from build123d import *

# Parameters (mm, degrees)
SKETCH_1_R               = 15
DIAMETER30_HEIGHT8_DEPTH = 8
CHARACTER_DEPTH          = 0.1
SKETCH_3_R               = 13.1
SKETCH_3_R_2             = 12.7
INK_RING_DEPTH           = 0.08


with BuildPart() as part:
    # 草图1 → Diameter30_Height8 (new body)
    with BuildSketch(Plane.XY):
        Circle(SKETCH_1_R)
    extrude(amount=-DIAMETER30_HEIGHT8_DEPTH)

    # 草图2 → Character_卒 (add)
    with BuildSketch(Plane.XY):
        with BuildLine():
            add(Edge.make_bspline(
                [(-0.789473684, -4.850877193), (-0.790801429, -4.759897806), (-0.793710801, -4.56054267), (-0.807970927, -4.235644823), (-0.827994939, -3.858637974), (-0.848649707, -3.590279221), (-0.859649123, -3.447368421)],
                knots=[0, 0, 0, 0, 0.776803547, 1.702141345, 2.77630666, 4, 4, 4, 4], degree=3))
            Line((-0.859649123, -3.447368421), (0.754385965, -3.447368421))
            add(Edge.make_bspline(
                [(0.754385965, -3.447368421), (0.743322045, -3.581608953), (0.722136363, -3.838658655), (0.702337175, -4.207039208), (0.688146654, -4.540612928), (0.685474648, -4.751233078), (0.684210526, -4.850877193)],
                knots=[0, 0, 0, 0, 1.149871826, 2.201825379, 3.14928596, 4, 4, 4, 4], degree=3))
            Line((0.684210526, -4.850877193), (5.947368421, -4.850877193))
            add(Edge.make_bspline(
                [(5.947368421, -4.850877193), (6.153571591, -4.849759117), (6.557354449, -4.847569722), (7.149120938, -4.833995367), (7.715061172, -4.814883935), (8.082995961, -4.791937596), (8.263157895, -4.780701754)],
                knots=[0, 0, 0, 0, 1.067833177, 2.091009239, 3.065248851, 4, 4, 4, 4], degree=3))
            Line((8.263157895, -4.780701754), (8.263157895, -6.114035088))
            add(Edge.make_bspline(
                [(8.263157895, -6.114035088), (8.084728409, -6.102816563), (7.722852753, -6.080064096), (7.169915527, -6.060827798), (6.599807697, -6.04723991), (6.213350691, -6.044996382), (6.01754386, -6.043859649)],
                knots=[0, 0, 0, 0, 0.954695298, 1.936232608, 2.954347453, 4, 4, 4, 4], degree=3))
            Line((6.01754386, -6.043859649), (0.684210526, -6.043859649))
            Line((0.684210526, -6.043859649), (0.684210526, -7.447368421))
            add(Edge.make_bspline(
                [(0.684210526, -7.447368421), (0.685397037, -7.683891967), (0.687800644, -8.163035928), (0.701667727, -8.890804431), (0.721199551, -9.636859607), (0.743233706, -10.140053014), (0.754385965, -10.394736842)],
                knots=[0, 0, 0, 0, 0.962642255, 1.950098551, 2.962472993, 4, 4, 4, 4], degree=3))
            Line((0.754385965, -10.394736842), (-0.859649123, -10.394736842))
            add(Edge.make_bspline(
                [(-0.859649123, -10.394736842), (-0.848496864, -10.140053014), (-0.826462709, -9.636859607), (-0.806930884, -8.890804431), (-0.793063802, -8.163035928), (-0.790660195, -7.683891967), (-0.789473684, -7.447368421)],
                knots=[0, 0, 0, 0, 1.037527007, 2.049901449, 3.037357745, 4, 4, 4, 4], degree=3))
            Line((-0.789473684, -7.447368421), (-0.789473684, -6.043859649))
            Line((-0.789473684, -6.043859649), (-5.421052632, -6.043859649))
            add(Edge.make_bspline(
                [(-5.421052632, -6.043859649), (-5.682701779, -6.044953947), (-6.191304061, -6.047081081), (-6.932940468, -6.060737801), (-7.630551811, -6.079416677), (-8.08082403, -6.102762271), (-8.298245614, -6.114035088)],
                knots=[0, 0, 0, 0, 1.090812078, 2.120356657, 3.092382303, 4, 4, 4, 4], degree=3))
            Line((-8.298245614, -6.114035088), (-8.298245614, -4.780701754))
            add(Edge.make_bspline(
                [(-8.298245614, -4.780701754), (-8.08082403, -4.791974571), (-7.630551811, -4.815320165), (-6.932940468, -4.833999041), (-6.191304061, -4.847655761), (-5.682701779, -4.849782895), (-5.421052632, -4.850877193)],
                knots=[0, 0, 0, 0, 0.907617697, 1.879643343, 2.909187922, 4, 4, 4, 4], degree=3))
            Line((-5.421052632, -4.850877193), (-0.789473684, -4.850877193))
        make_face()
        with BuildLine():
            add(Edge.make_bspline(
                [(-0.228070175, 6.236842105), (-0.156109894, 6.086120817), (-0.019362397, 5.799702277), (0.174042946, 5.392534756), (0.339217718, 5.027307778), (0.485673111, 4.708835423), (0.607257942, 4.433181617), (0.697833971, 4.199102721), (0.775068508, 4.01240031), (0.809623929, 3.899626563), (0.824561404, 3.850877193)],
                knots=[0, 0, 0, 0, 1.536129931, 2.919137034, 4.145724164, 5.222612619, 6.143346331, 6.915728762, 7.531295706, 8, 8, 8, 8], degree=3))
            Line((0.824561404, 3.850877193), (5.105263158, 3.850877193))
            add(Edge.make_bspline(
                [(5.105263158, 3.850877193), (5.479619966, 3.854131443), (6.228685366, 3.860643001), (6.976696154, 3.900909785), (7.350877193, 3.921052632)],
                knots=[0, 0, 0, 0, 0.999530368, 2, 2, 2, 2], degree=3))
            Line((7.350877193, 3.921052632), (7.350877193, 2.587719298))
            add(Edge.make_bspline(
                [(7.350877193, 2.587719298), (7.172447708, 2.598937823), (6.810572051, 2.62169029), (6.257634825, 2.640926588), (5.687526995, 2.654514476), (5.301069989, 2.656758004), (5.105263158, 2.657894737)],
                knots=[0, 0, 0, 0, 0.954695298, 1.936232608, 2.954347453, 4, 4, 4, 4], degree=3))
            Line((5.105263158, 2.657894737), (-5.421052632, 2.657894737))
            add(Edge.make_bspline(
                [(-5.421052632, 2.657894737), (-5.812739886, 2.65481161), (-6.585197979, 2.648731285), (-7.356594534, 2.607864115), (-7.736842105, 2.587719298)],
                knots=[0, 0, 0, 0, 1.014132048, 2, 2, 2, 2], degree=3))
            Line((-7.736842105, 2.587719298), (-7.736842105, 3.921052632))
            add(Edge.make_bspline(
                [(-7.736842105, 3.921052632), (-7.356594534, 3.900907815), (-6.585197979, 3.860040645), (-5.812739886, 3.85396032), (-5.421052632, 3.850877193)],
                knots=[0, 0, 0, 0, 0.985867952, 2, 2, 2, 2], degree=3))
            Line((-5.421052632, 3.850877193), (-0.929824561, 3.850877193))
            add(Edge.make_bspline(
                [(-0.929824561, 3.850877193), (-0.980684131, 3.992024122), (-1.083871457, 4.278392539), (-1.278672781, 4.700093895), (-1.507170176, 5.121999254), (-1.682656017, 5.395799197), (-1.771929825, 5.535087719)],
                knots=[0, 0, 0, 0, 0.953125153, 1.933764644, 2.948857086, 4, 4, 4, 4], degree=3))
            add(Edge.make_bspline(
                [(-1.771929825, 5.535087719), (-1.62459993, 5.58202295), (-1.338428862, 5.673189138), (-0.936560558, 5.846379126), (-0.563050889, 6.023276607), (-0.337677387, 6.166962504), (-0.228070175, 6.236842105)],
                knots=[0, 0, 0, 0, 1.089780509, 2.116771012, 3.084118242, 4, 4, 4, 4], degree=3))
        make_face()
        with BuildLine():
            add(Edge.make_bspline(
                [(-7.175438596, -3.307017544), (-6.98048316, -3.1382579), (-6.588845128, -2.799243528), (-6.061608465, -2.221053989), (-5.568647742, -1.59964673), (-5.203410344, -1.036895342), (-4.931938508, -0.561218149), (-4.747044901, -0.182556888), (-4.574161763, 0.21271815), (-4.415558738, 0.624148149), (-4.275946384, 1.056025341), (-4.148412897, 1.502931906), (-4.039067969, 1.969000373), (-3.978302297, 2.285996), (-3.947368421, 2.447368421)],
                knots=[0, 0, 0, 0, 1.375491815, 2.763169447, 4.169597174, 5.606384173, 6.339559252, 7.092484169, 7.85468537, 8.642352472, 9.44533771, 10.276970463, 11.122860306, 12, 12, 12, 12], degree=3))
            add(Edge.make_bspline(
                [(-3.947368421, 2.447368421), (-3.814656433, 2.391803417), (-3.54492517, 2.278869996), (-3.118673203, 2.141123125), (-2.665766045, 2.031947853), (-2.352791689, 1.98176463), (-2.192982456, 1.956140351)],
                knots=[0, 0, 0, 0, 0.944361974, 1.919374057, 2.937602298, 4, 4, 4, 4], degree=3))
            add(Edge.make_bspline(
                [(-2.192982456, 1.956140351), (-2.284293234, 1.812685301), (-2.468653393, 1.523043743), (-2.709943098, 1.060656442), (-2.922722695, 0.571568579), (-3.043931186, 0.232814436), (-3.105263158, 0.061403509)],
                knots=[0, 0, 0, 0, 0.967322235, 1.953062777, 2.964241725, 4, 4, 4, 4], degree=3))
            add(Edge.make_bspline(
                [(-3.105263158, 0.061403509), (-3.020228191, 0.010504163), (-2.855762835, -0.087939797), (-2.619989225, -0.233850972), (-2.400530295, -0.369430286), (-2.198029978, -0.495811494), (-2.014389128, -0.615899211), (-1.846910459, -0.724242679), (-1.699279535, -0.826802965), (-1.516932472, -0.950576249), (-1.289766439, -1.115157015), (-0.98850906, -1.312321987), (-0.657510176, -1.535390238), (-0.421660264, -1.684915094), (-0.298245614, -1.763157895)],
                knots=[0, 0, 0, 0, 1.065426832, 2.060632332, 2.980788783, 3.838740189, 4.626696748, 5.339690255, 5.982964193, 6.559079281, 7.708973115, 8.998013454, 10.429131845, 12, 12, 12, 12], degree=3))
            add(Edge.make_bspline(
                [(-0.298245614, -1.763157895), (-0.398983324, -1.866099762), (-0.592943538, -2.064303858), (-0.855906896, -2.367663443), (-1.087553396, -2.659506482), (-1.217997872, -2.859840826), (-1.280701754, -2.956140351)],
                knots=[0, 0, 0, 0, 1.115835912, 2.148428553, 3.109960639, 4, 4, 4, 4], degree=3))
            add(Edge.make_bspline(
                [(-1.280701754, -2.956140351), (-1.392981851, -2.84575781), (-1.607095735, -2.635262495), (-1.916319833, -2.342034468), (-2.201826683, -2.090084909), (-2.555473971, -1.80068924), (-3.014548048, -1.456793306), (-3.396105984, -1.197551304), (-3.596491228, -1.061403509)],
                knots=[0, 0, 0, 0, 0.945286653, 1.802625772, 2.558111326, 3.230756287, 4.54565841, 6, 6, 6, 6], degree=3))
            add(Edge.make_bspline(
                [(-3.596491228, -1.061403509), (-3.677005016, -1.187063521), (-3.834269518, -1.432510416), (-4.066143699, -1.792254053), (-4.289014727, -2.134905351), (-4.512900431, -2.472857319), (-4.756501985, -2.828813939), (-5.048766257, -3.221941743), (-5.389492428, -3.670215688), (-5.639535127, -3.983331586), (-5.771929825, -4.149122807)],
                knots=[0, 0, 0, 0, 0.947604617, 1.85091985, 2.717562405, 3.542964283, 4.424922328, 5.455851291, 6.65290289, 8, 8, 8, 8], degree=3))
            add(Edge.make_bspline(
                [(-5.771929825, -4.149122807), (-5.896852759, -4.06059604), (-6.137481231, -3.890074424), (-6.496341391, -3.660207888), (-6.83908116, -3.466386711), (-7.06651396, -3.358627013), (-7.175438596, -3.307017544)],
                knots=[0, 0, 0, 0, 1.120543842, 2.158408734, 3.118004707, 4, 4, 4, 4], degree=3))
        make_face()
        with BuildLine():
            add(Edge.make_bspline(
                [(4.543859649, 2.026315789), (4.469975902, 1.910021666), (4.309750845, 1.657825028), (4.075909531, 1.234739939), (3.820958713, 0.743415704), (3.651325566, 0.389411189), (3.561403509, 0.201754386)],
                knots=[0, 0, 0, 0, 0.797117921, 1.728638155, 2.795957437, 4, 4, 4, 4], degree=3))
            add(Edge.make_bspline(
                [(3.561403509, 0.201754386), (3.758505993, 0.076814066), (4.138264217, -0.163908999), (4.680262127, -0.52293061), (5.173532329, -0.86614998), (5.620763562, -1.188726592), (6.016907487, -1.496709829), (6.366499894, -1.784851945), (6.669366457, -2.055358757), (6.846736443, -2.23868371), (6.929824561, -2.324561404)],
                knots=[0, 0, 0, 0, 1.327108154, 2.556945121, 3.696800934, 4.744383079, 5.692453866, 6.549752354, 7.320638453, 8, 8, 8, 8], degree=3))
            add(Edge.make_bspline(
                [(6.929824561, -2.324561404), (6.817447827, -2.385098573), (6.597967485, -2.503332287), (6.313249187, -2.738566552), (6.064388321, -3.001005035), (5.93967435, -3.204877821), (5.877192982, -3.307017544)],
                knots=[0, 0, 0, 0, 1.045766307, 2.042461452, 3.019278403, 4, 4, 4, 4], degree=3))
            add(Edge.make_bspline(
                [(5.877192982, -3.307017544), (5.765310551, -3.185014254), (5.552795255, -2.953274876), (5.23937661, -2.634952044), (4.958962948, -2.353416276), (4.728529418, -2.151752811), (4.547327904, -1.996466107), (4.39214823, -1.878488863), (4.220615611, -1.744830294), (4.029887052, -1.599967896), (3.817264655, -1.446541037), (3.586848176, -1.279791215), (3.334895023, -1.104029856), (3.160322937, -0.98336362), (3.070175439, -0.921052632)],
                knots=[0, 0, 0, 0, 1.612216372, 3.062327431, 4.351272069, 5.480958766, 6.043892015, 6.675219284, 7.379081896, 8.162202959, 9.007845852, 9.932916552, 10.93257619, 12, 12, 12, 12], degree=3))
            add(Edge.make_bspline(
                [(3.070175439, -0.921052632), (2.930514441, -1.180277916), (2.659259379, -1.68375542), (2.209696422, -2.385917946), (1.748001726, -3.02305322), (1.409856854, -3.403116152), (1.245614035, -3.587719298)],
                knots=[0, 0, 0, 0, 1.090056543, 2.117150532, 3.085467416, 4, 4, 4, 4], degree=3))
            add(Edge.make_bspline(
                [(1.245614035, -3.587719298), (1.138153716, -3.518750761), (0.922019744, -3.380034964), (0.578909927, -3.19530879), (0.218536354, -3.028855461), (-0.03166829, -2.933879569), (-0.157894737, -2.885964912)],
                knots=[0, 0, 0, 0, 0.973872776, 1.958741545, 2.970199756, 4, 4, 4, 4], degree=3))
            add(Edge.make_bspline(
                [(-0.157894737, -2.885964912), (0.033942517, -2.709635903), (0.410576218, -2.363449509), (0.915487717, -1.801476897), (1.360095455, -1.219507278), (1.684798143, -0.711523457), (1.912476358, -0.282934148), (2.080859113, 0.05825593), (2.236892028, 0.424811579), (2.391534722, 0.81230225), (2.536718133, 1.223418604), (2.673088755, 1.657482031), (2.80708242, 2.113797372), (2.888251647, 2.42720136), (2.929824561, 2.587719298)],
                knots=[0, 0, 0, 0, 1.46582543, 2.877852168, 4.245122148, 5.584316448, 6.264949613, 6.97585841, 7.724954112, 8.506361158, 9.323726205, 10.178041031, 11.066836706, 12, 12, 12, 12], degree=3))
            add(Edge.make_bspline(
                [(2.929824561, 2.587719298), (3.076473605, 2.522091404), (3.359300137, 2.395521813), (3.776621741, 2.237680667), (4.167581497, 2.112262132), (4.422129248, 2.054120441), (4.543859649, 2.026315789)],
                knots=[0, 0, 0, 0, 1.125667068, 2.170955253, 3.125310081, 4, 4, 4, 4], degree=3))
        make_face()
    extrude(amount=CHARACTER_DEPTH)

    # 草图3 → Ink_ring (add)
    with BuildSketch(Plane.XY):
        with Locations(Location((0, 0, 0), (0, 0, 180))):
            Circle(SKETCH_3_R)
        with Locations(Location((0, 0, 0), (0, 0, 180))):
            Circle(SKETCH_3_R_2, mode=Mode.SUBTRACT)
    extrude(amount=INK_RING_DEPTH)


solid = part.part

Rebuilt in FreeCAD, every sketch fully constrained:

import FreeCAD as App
import Part
import Sketcher

doc = App.newDocument("Part")
body = doc.addObject("PartDesign::Body", "Body")

sketch1 = body.newObject("Sketcher::SketchObject", "Sketch")
sketch1.AttachmentSupport = (doc.getObject("XY_Plane"), [""])
sketch1.MapMode = "FlatFace"
sketch1.addGeometry(Part.Circle(App.Vector(0, 0, 0), App.Vector(0, 0, 1), 15), False)
sketch1.addConstraint([
    Sketcher.Constraint("Coincident", 0, 3, -1, 1),
    Sketcher.Constraint("Diameter", 0, 30.0),
])
pad1 = body.newObject("PartDesign::Pad", "Pad")
pad1.Profile = sketch1
pad1.Length = 8
pad1.Reversed = True

sketch2 = body.newObject("Sketcher::SketchObject", "Sketch001")
sketch2.AttachmentSupport = (doc.getObject("XY_Plane"), [""])
sketch2.MapMode = "FlatFace"
sketch2.addGeometry([
    Part.BSplineCurve([App.Vector(-0.789474, -4.850877, 0), App.Vector(-0.790801, -4.759898, 0), App.Vector(-0.793711, -4.560543, 0), App.Vector(-0.807971, -4.235645, 0), App.Vector(-0.827995, -3.858638, 0), App.Vector(-0.84865, -3.590279, 0), App.Vector(-0.859649, -3.447368, 0)], [4, 1, 1, 1, 4], [0, 0.776803547, 1.702141345, 2.77630666, 4], False, 3, [1, 1, 1, 1, 1, 1, 1], False),
    Part.LineSegment(App.Vector(-0.789474, -4.850877, 0), App.Vector(-5.421053, -4.850877, 0)),
    Part.BSplineCurve([App.Vector(-8.298246, -4.780702, 0), App.Vector(-8.080824, -4.791975, 0), App.Vector(-7.630552, -4.81532, 0), App.Vector(-6.93294, -4.833999, 0), App.Vector(-6.191304, -4.847656, 0), App.Vector(-5.682702, -4.849783, 0), App.Vector(-5.421053, -4.850877, 0)], [4, 1, 1, 1, 4], [0, 0.907617697, 1.879643343, 2.909187922, 4], False, 3, [1, 1, 1, 1, 1, 1, 1], False),
    Part.LineSegment(App.Vector(-8.298246, -4.780702, 0), App.Vector(-8.298246, -6.114035, 0)),
    Part.BSplineCurve([App.Vector(-5.421053, -6.04386, 0), App.Vector(-5.682702, -6.044954, 0), App.Vector(-6.191304, -6.047081, 0), App.Vector(-6.93294, -6.060738, 0), App.Vector(-7.630552, -6.079417, 0), App.Vector(-8.080824, -6.102762, 0), App.Vector(-8.298246, -6.114035, 0)], [4, 1, 1, 1, 4], [0, 1.090812078, 2.120356657, 3.092382303, 4], False, 3, [1, 1, 1, 1, 1, 1, 1], False),
    Part.LineSegment(App.Vector(-5.421053, -6.04386, 0), App.Vector(-0.789474, -6.04386, 0)),
    Part.LineSegment(App.Vector(-0.789474, -6.04386, 0), App.Vector(-0.789474, -7.447368, 0)),
    Part.BSplineCurve([App.Vector(-0.859649, -10.394737, 0), App.Vector(-0.848497, -10.140053, 0), App.Vector(-0.826463, -9.63686, 0), App.Vector(-0.806931, -8.890804, 0), App.Vector(-0.793064, -8.163036, 0), App.Vector(-0.79066, -7.683892, 0), App.Vector(-0.789474, -7.447368, 0)], [4, 1, 1, 1, 4], [0, 1.037527007, 2.049901449, 3.037357745, 4], False, 3, [1, 1, 1, 1, 1, 1, 1], False),
    Part.LineSegment(App.Vector(-0.859649, -10.394737, 0), App.Vector(0.754386, -10.394737, 0)),
    Part.BSplineCurve([App.Vector(0.684211, -7.447368, 0), App.Vector(0.685397, -7.683892, 0), App.Vector(0.687801, -8.163036, 0), App.Vector(0.701668, -8.890804, 0), App.Vector(0.7212, -9.63686, 0), App.Vector(0.743234, -10.140053, 0), App.Vector(0.754386, -10.394737, 0)], [4, 1, 1, 1, 4], [0, 0.962642255, 1.950098551, 2.962472993, 4], False, 3, [1, 1, 1, 1, 1, 1, 1], False),
    Part.LineSegment(App.Vector(0.684211, -7.447368, 0), App.Vector(0.684211, -6.04386, 0)),
    Part.LineSegment(App.Vector(0.684211, -6.04386, 0), App.Vector(6.017544, -6.04386, 0)),
    Part.BSplineCurve([App.Vector(8.263158, -6.114035, 0), App.Vector(8.084728, -6.102817, 0), App.Vector(7.722853, -6.080064, 0), App.Vector(7.169916, -6.060828, 0), App.Vector(6.599808, -6.04724, 0), App.Vector(6.213351, -6.044996, 0), App.Vector(6.017544, -6.04386, 0)], [4, 1, 1, 1, 4], [0, 0.954695298, 1.936232608, 2.954347453, 4], False, 3, [1, 1, 1, 1, 1, 1, 1], False),
    Part.LineSegment(App.Vector(8.263158, -6.114035, 0), App.Vector(8.263158, -4.780702, 0)),
    Part.BSplineCurve([App.Vector(5.947368, -4.850877, 0), App.Vector(6.153572, -4.849759, 0), App.Vector(6.557354, -4.84757, 0), App.Vector(7.149121, -4.833995, 0), App.Vector(7.715061, -4.814884, 0), App.Vector(8.082996, -4.791938, 0), App.Vector(8.263158, -4.780702, 0)], [4, 1, 1, 1, 4], [0, 1.067833177, 2.091009239, 3.065248851, 4], False, 3, [1, 1, 1, 1, 1, 1, 1], False),
    Part.LineSegment(App.Vector(5.947368, -4.850877, 0), App.Vector(0.684211, -4.850877, 0)),
    Part.BSplineCurve([App.Vector(0.754386, -3.447368, 0), App.Vector(0.743322, -3.581609, 0), App.Vector(0.722136, -3.838659, 0), App.Vector(0.702337, -4.207039, 0), App.Vector(0.688147, -4.540613, 0), App.Vector(0.685475, -4.751233, 0), App.Vector(0.684211, -4.850877, 0)], [4, 1, 1, 1, 4], [0, 1.149871826, 2.201825379, 3.14928596, 4], False, 3, [1, 1, 1, 1, 1, 1, 1], False),
    Part.LineSegment(App.Vector(0.754386, -3.447368, 0), App.Vector(-0.859649, -3.447368, 0)),
    Part.BSplineCurve([App.Vector(-0.22807, 6.236842, 0), App.Vector(-0.15611, 6.086121, 0), App.Vector(-0.019362, 5.799702, 0), App.Vector(0.174043, 5.392535, 0), App.Vector(0.339218, 5.027308, 0), App.Vector(0.485673, 4.708835, 0), App.Vector(0.607258, 4.433182, 0), App.Vector(0.697834, 4.199103, 0), App.Vector(0.775069, 4.0124, 0), App.Vector(0.809624, 3.899627, 0), App.Vector(0.824561, 3.850877, 0)], [4, 1, 1, 1, 1, 1, 1, 1, 4], [0, 1.536129931, 2.919137034, 4.145724164, 5.222612619, 6.143346331, 6.915728762, 7.531295706, 8], False, 3, [1, 1, 1, 1, 1, 1, 1, 1, 1, 1, 1], False),
    Part.BSplineCurve([App.Vector(-1.77193, 5.535088, 0), App.Vector(-1.6246, 5.582023, 0), App.Vector(-1.338429, 5.673189, 0), App.Vector(-0.936561, 5.846379, 0), App.Vector(-0.563051, 6.023277, 0), App.Vector(-0.337677, 6.166963, 0), App.Vector(-0.22807, 6.236842, 0)], [4, 1, 1, 1, 4], [0, 1.089780509, 2.116771012, 3.084118242, 4], False, 3, [1, 1, 1, 1, 1, 1, 1], False),
    Part.BSplineCurve([App.Vector(-0.929825, 3.850877, 0), App.Vector(-0.980684, 3.992024, 0), App.Vector(-1.083871, 4.278393, 0), App.Vector(-1.278673, 4.700094, 0), App.Vector(-1.50717, 5.121999, 0), App.Vector(-1.682656, 5.395799, 0), App.Vector(-1.77193, 5.535088, 0)], [4, 1, 1, 1, 4], [0, 0.953125153, 1.933764644, 2.948857086, 4], False, 3, [1, 1, 1, 1, 1, 1, 1], False),
    Part.LineSegment(App.Vector(-0.929825, 3.850877, 0), App.Vector(-5.421053, 3.850877, 0)),
    Part.BSplineCurve([App.Vector(-7.736842, 3.921053, 0), App.Vector(-7.356595, 3.900908, 0), App.Vector(-6.585198, 3.860041, 0), App.Vector(-5.81274, 3.85396, 0), App.Vector(-5.421053, 3.850877, 0)], [4, 1, 4], [0, 0.985867952, 2], False, 3, [1, 1, 1, 1, 1], False),
    Part.LineSegment(App.Vector(-7.736842, 3.921053, 0), App.Vector(-7.736842, 2.587719, 0)),
    Part.BSplineCurve([App.Vector(-5.421053, 2.657895, 0), App.Vector(-5.81274, 2.654812, 0), App.Vector(-6.585198, 2.648731, 0), App.Vector(-7.356595, 2.607864, 0), App.Vector(-7.736842, 2.587719, 0)], [4, 1, 4], [0, 1.014132048, 2], False, 3, [1, 1, 1, 1, 1], False),
    Part.LineSegment(App.Vector(-5.421053, 2.657895, 0), App.Vector(5.105263, 2.657895, 0)),
    Part.BSplineCurve([App.Vector(7.350877, 2.587719, 0), App.Vector(7.172448, 2.598938, 0), App.Vector(6.810572, 2.62169, 0), App.Vector(6.257635, 2.640927, 0), App.Vector(5.687527, 2.654514, 0), App.Vector(5.30107, 2.656758, 0), App.Vector(5.105263, 2.657895, 0)], [4, 1, 1, 1, 4], [0, 0.954695298, 1.936232608, 2.954347453, 4], False, 3, [1, 1, 1, 1, 1, 1, 1], False),
    Part.LineSegment(App.Vector(7.350877, 2.587719, 0), App.Vector(7.350877, 3.921053, 0)),
    Part.BSplineCurve([App.Vector(5.105263, 3.850877, 0), App.Vector(5.47962, 3.854131, 0), App.Vector(6.228685, 3.860643, 0), App.Vector(6.976696, 3.90091, 0), App.Vector(7.350877, 3.921053, 0)], [4, 1, 4], [0, 0.999530368, 2], False, 3, [1, 1, 1, 1, 1], False),
    Part.LineSegment(App.Vector(5.105263, 3.850877, 0), App.Vector(0.824561, 3.850877, 0)),
    Part.BSplineCurve([App.Vector(-7.175439, -3.307018, 0), App.Vector(-6.980483, -3.138258, 0), App.Vector(-6.588845, -2.799244, 0), App.Vector(-6.061608, -2.221054, 0), App.Vector(-5.568648, -1.599647, 0), App.Vector(-5.20341, -1.036895, 0), App.Vector(-4.931939, -0.561218, 0), App.Vector(-4.747045, -0.182557, 0), App.Vector(-4.574162, 0.212718, 0), App.Vector(-4.415559, 0.624148, 0), App.Vector(-4.275946, 1.056025, 0), App.Vector(-4.148413, 1.502932, 0), App.Vector(-4.039068, 1.969, 0), App.Vector(-3.978302, 2.285996, 0), App.Vector(-3.947368, 2.447368, 0)], [4, 1, 1, 1, 1, 1, 1, 1, 1, 1, 1, 1, 4], [0, 1.375491815, 2.763169447, 4.169597174, 5.606384173, 6.339559252, 7.092484169, 7.85468537, 8.642352472, 9.44533771, 10.276970463, 11.122860306, 12], False, 3, [1, 1, 1, 1, 1, 1, 1, 1, 1, 1, 1, 1, 1, 1, 1], False),
    Part.BSplineCurve([App.Vector(-5.77193, -4.149123, 0), App.Vector(-5.896853, -4.060596, 0), App.Vector(-6.137481, -3.890074, 0), App.Vector(-6.496341, -3.660208, 0), App.Vector(-6.839081, -3.466387, 0), App.Vector(-7.066514, -3.358627, 0), App.Vector(-7.175439, -3.307018, 0)], [4, 1, 1, 1, 4], [0, 1.120543842, 2.158408734, 3.118004707, 4], False, 3, [1, 1, 1, 1, 1, 1, 1], False),
    Part.BSplineCurve([App.Vector(-3.596491, -1.061404, 0), App.Vector(-3.677005, -1.187064, 0), App.Vector(-3.83427, -1.43251, 0), App.Vector(-4.066144, -1.792254, 0), App.Vector(-4.289015, -2.134905, 0), App.Vector(-4.5129, -2.472857, 0), App.Vector(-4.756502, -2.828814, 0), App.Vector(-5.048766, -3.221942, 0), App.Vector(-5.389492, -3.670216, 0), App.Vector(-5.639535, -3.983332, 0), App.Vector(-5.77193, -4.149123, 0)], [4, 1, 1, 1, 1, 1, 1, 1, 4], [0, 0.947604617, 1.85091985, 2.717562405, 3.542964283, 4.424922328, 5.455851291, 6.65290289, 8], False, 3, [1, 1, 1, 1, 1, 1, 1, 1, 1, 1, 1], False),
    Part.BSplineCurve([App.Vector(-1.280702, -2.95614, 0), App.Vector(-1.392982, -2.845758, 0), App.Vector(-1.607096, -2.635262, 0), App.Vector(-1.91632, -2.342034, 0), App.Vector(-2.201827, -2.090085, 0), App.Vector(-2.555474, -1.800689, 0), App.Vector(-3.014548, -1.456793, 0), App.Vector(-3.396106, -1.197551, 0), App.Vector(-3.596491, -1.061404, 0)], [4, 1, 1, 1, 1, 1, 4], [0, 0.945286653, 1.802625772, 2.558111326, 3.230756287, 4.54565841, 6], False, 3, [1, 1, 1, 1, 1, 1, 1, 1, 1], False),
    Part.BSplineCurve([App.Vector(-0.298246, -1.763158, 0), App.Vector(-0.398983, -1.8661, 0), App.Vector(-0.592944, -2.064304, 0), App.Vector(-0.855907, -2.367663, 0), App.Vector(-1.087553, -2.659506, 0), App.Vector(-1.217998, -2.859841, 0), App.Vector(-1.280702, -2.95614, 0)], [4, 1, 1, 1, 4], [0, 1.115835912, 2.148428553, 3.109960639, 4], False, 3, [1, 1, 1, 1, 1, 1, 1], False),
    Part.BSplineCurve([App.Vector(-3.105263, 0.061404, 0), App.Vector(-3.020228, 0.010504, 0), App.Vector(-2.855763, -0.08794, 0), App.Vector(-2.619989, -0.233851, 0), App.Vector(-2.40053, -0.36943, 0), App.Vector(-2.19803, -0.495811, 0), App.Vector(-2.014389, -0.615899, 0), App.Vector(-1.84691, -0.724243, 0), App.Vector(-1.69928, -0.826803, 0), App.Vector(-1.516932, -0.950576, 0), App.Vector(-1.289766, -1.115157, 0), App.Vector(-0.988509, -1.312322, 0), App.Vector(-0.65751, -1.53539, 0), App.Vector(-0.42166, -1.684915, 0), App.Vector(-0.298246, -1.763158, 0)], [4, 1, 1, 1, 1, 1, 1, 1, 1, 1, 1, 1, 4], [0, 1.065426832, 2.060632332, 2.980788783, 3.838740189, 4.626696748, 5.339690255, 5.982964193, 6.559079281, 7.708973115, 8.998013454, 10.429131845, 12], False, 3, [1, 1, 1, 1, 1, 1, 1, 1, 1, 1, 1, 1, 1, 1, 1], False),
    Part.BSplineCurve([App.Vector(-2.192982, 1.95614, 0), App.Vector(-2.284293, 1.812685, 0), App.Vector(-2.468653, 1.523044, 0), App.Vector(-2.709943, 1.060656, 0), App.Vector(-2.922723, 0.571569, 0), App.Vector(-3.043931, 0.232814, 0), App.Vector(-3.105263, 0.061404, 0)], [4, 1, 1, 1, 4], [0, 0.967322235, 1.953062777, 2.964241725, 4], False, 3, [1, 1, 1, 1, 1, 1, 1], False),
    Part.BSplineCurve([App.Vector(-3.947368, 2.447368, 0), App.Vector(-3.814656, 2.391803, 0), App.Vector(-3.544925, 2.27887, 0), App.Vector(-3.118673, 2.141123, 0), App.Vector(-2.665766, 2.031948, 0), App.Vector(-2.352792, 1.981765, 0), App.Vector(-2.192982, 1.95614, 0)], [4, 1, 1, 1, 4], [0, 0.944361974, 1.919374057, 2.937602298, 4], False, 3, [1, 1, 1, 1, 1, 1, 1], False),
    Part.BSplineCurve([App.Vector(4.54386, 2.026316, 0), App.Vector(4.469976, 1.910022, 0), App.Vector(4.309751, 1.657825, 0), App.Vector(4.07591, 1.23474, 0), App.Vector(3.820959, 0.743416, 0), App.Vector(3.651326, 0.389411, 0), App.Vector(3.561404, 0.201754, 0)], [4, 1, 1, 1, 4], [0, 0.797117921, 1.728638155, 2.795957437, 4], False, 3, [1, 1, 1, 1, 1, 1, 1], False),
    Part.BSplineCurve([App.Vector(2.929825, 2.587719, 0), App.Vector(3.076474, 2.522091, 0), App.Vector(3.3593, 2.395522, 0), App.Vector(3.776622, 2.237681, 0), App.Vector(4.167581, 2.112262, 0), App.Vector(4.422129, 2.05412, 0), App.Vector(4.54386, 2.026316, 0)], [4, 1, 1, 1, 4], [0, 1.125667068, 2.170955253, 3.125310081, 4], False, 3, [1, 1, 1, 1, 1, 1, 1], False),
    Part.BSplineCurve([App.Vector(-0.157895, -2.885965, 0), App.Vector(0.033943, -2.709636, 0), App.Vector(0.410576, -2.36345, 0), App.Vector(0.915488, -1.801477, 0), App.Vector(1.360095, -1.219507, 0), App.Vector(1.684798, -0.711523, 0), App.Vector(1.912476, -0.282934, 0), App.Vector(2.080859, 0.058256, 0), App.Vector(2.236892, 0.424812, 0), App.Vector(2.391535, 0.812302, 0), App.Vector(2.536718, 1.223419, 0), App.Vector(2.673089, 1.657482, 0), App.Vector(2.807082, 2.113797, 0), App.Vector(2.888252, 2.427201, 0), App.Vector(2.929825, 2.587719, 0)], [4, 1, 1, 1, 1, 1, 1, 1, 1, 1, 1, 1, 4], [0, 1.46582543, 2.877852168, 4.245122148, 5.584316448, 6.264949613, 6.97585841, 7.724954112, 8.506361158, 9.323726205, 10.178041031, 11.066836706, 12], False, 3, [1, 1, 1, 1, 1, 1, 1, 1, 1, 1, 1, 1, 1, 1, 1], False),
    Part.BSplineCurve([App.Vector(1.245614, -3.587719, 0), App.Vector(1.138154, -3.518751, 0), App.Vector(0.92202, -3.380035, 0), App.Vector(0.57891, -3.195309, 0), App.Vector(0.218536, -3.028855, 0), App.Vector(-0.031668, -2.93388, 0), App.Vector(-0.157895, -2.885965, 0)], [4, 1, 1, 1, 4], [0, 0.973872776, 1.958741545, 2.970199756, 4], False, 3, [1, 1, 1, 1, 1, 1, 1], False),
    Part.BSplineCurve([App.Vector(3.070175, -0.921053, 0), App.Vector(2.930514, -1.180278, 0), App.Vector(2.659259, -1.683755, 0), App.Vector(2.209696, -2.385918, 0), App.Vector(1.748002, -3.023053, 0), App.Vector(1.409857, -3.403116, 0), App.Vector(1.245614, -3.587719, 0)], [4, 1, 1, 1, 4], [0, 1.090056543, 2.117150532, 3.085467416, 4], False, 3, [1, 1, 1, 1, 1, 1, 1], False),
    Part.BSplineCurve([App.Vector(5.877193, -3.307018, 0), App.Vector(5.765311, -3.185014, 0), App.Vector(5.552795, -2.953275, 0), App.Vector(5.239377, -2.634952, 0), App.Vector(4.958963, -2.353416, 0), App.Vector(4.728529, -2.151753, 0), App.Vector(4.547328, -1.996466, 0), App.Vector(4.392148, -1.878489, 0), App.Vector(4.220616, -1.74483, 0), App.Vector(4.029887, -1.599968, 0), App.Vector(3.817265, -1.446541, 0), App.Vector(3.586848, -1.279791, 0), App.Vector(3.334895, -1.10403, 0), App.Vector(3.160323, -0.983364, 0), App.Vector(3.070175, -0.921053, 0)], [4, 1, 1, 1, 1, 1, 1, 1, 1, 1, 1, 1, 4], [0, 1.612216372, 3.062327431, 4.351272069, 5.480958766, 6.043892015, 6.675219284, 7.379081896, 8.162202959, 9.007845852, 9.932916552, 10.93257619, 12], False, 3, [1, 1, 1, 1, 1, 1, 1, 1, 1, 1, 1, 1, 1, 1, 1], False),
    Part.BSplineCurve([App.Vector(6.929825, -2.324561, 0), App.Vector(6.817448, -2.385099, 0), App.Vector(6.597967, -2.503332, 0), App.Vector(6.313249, -2.738567, 0), App.Vector(6.064388, -3.001005, 0), App.Vector(5.939674, -3.204878, 0), App.Vector(5.877193, -3.307018, 0)], [4, 1, 1, 1, 4], [0, 1.045766307, 2.042461452, 3.019278403, 4], False, 3, [1, 1, 1, 1, 1, 1, 1], False),
    Part.BSplineCurve([App.Vector(3.561404, 0.201754, 0), App.Vector(3.758506, 0.076814, 0), App.Vector(4.138264, -0.163909, 0), App.Vector(4.680262, -0.522931, 0), App.Vector(5.173532, -0.86615, 0), App.Vector(5.620764, -1.188727, 0), App.Vector(6.016907, -1.49671, 0), App.Vector(6.3665, -1.784852, 0), App.Vector(6.669366, -2.055359, 0), App.Vector(6.846736, -2.238684, 0), App.Vector(6.929825, -2.324561, 0)], [4, 1, 1, 1, 1, 1, 1, 1, 4], [0, 1.327108154, 2.556945121, 3.696800934, 4.744383079, 5.692453866, 6.549752354, 7.320638453, 8], False, 3, [1, 1, 1, 1, 1, 1, 1, 1, 1, 1, 1], False),
], False)
sketch2.addConstraint([
    Sketcher.Constraint("Block", 0),
    Sketcher.Constraint("Block", 2),
    Sketcher.Constraint("Block", 4),
    Sketcher.Constraint("Block", 7),
    Sketcher.Constraint("Block", 9),
    Sketcher.Constraint("Block", 12),
    Sketcher.Constraint("Block", 14),
    Sketcher.Constraint("Block", 16),
    Sketcher.Constraint("Block", 18),
    Sketcher.Constraint("Block", 19),
    Sketcher.Constraint("Block", 20),
    Sketcher.Constraint("Block", 22),
    Sketcher.Constraint("Block", 24),
    Sketcher.Constraint("Block", 26),
    Sketcher.Constraint("Block", 28),
    Sketcher.Constraint("Block", 30),
    Sketcher.Constraint("Block", 31),
    Sketcher.Constraint("Block", 32),
    Sketcher.Constraint("Block", 33),
    Sketcher.Constraint("Block", 34),
    Sketcher.Constraint("Block", 35),
    Sketcher.Constraint("Block", 36),
    Sketcher.Constraint("Block", 37),
    Sketcher.Constraint("Block", 38),
    Sketcher.Constraint("Block", 39),
    Sketcher.Constraint("Block", 40),
    Sketcher.Constraint("Block", 41),
    Sketcher.Constraint("Block", 42),
    Sketcher.Constraint("Block", 43),
    Sketcher.Constraint("Block", 44),
    Sketcher.Constraint("Block", 45),
    Sketcher.Constraint("Coincident", 0, 1, 1, 1),
    Sketcher.Constraint("Coincident", 1, 2, 2, 2),
    Sketcher.Constraint("Coincident", 2, 1, 3, 1),
    Sketcher.Constraint("Coincident", 3, 2, 4, 2),
    Sketcher.Constraint("Coincident", 4, 1, 5, 1),
    Sketcher.Constraint("Coincident", 5, 2, 6, 1),
    Sketcher.Constraint("Coincident", 6, 2, 7, 2),
    Sketcher.Constraint("Coincident", 7, 1, 8, 1),
    Sketcher.Constraint("Coincident", 8, 2, 9, 2),
    Sketcher.Constraint("Coincident", 9, 1, 10, 1),
    Sketcher.Constraint("Coincident", 10, 2, 11, 1),
    Sketcher.Constraint("Coincident", 11, 2, 12, 2),
    Sketcher.Constraint("Coincident", 12, 1, 13, 1),
    Sketcher.Constraint("Coincident", 13, 2, 14, 2),
    Sketcher.Constraint("Coincident", 14, 1, 15, 1),
    Sketcher.Constraint("Coincident", 15, 2, 16, 2),
    Sketcher.Constraint("Coincident", 16, 1, 17, 1),
    Sketcher.Constraint("Coincident", 17, 2, 0, 2),
    Sketcher.Constraint("Coincident", 20, 1, 21, 1),
    Sketcher.Constraint("Coincident", 21, 2, 22, 2),
    Sketcher.Constraint("Coincident", 22, 1, 23, 1),
    Sketcher.Constraint("Coincident", 23, 2, 24, 2),
    Sketcher.Constraint("Coincident", 24, 1, 25, 1),
    Sketcher.Constraint("Coincident", 25, 2, 26, 2),
    Sketcher.Constraint("Coincident", 26, 1, 27, 1),
    Sketcher.Constraint("Coincident", 27, 2, 28, 2),
    Sketcher.Constraint("Coincident", 28, 1, 29, 1),
    Sketcher.Constraint("Coincident", 29, 2, 18, 2),
    Sketcher.Constraint("Horizontal", 5),
    Sketcher.Constraint("Vertical", 6),
    Sketcher.Constraint("Vertical", 10),
    Sketcher.Constraint("Horizontal", 11),
])
pad2 = body.newObject("PartDesign::Pad", "Pad001")
pad2.Profile = sketch2
pad2.Length = 0.1

sketch3 = body.newObject("Sketcher::SketchObject", "Sketch002")
sketch3.AttachmentSupport = (doc.getObject("XY_Plane"), [""])
sketch3.MapMode = "FlatFace"
sketch3.addGeometry([
    Part.Circle(App.Vector(0, 0, 0), App.Vector(0, 0, 1), 13),
    Part.Circle(App.Vector(0, 0, 0), App.Vector(0, 0, 1), 13),
], False)
sketch3.addConstraint([
    Sketcher.Constraint("Coincident", 0, 3, -1, 1),
    Sketcher.Constraint("Coincident", 1, 3, -1, 1),
    Sketcher.Constraint("Diameter", 0, 26.2),
    Sketcher.Constraint("Diameter", 1, 25.4),
])
pad3 = body.newObject("PartDesign::Pad", "Pad002")
pad3.Profile = sketch3
pad3.Length = 0.08

doc.recompute()
